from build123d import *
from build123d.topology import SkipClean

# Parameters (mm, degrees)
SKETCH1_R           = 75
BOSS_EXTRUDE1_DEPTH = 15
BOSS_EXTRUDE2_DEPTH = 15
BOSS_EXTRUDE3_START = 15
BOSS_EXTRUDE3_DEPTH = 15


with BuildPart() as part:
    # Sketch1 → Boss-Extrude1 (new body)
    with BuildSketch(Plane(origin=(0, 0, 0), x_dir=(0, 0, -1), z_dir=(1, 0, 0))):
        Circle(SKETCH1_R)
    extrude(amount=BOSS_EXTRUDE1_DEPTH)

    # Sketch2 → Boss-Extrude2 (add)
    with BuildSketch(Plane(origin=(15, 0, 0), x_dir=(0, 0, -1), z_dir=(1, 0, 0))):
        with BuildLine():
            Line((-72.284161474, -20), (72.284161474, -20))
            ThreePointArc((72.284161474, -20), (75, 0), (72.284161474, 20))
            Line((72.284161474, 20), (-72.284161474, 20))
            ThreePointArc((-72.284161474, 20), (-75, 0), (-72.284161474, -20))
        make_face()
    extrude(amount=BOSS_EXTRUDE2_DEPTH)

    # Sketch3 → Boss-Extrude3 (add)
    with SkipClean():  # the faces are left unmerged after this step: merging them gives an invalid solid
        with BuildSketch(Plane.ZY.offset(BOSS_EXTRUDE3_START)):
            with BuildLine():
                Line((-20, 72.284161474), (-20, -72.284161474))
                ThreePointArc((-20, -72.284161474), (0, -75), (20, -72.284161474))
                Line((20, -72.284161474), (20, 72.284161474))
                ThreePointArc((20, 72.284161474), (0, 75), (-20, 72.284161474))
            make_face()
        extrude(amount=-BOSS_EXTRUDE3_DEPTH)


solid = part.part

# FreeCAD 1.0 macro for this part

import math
import FreeCAD as App
import Part
import Sketcher

V = App.Vector
Q = App.Units.Quantity

doc = App.newDocument("Part")
body = doc.addObject("PartDesign::Body", "Body")

sketch1 = doc.addObject("Sketcher::SketchObject", "Sketch")
body.addObject(sketch1)
sketch1.AttachmentSupport = (doc.YZ_Plane, [""])
sketch1.MapMode = "FlatFace"
sketch1.addGeometry(Part.Circle(V(0, 0, 0), V(0, 0, 1), 75), False)
sketch1.addConstraint([
    Sketcher.Constraint("Coincident", 0, 3, -1, 1),
    Sketcher.Constraint("Diameter", 0, Q("150 mm")),
])
pad1 = doc.addObject("PartDesign::Pad", "Pad")
body.addObject(pad1)
pad1.Profile = sketch1
pad1.Length = 15

sketch2 = doc.addObject("Sketcher::SketchObject", "Sketch001")
body.addObject(sketch2)
sketch2.AttachmentSupport = (doc.YZ_Plane, [""])
sketch2.MapMode = "FlatFace"
sketch2.AttachmentOffset = App.Placement(V(0, 0, 15), App.Rotation())
sketch2.addGeometry([
    Part.LineSegment(V(-20, 72, 0), V(-20, -72, 0)),
    Part.ArcOfCircle(Part.Circle(V(0, 0, 0), V(0, 0, 1), 75), math.radians(-105), math.radians(-75)),
    Part.LineSegment(V(20, -72, 0), V(20, 72, 0)),
    Part.ArcOfCircle(Part.Circle(V(0, 0, 0), V(0, 0, 1), 75), math.radians(75), math.radians(105)),
], False)
sketch2.addConstraint([
    Sketcher.Constraint("Coincident", 0, 2, 1, 1),
    Sketcher.Constraint("Coincident", 1, 2, 2, 1),
    Sketcher.Constraint("Coincident", 2, 2, 3, 1),
    Sketcher.Constraint("Coincident", 3, 2, 0, 1),
    Sketcher.Constraint("Vertical", 0),
    Sketcher.Constraint("Vertical", 2),
    Sketcher.Constraint("Coincident", 1, 3, -1, 1),
    Sketcher.Constraint("Coincident", 3, 3, -1, 1),
    Sketcher.Constraint("Equal", 1, 3),
    Sketcher.Constraint("Horizontal", 0, 2, 1, 2),
    Sketcher.Constraint("Radius", 1, Q("75 mm")),
    Sketcher.Constraint("DistanceX", 0, 2, -1, 1, Q("20 mm")),
])
pad2 = doc.addObject("PartDesign::Pad", "Pad001")
body.addObject(pad2)
pad2.Profile = sketch2
pad2.Length = 15

sketch3 = doc.addObject("Sketcher::SketchObject", "Sketch002")
body.addObject(sketch3)
sketch3.AttachmentSupport = (doc.YZ_Plane, [""])
sketch3.MapMode = "FlatFace"
sketch3.AttachmentOffset = App.Placement(V(0, 0, -15), App.Rotation())
sketch3.addGeometry([
    Part.LineSegment(V(72, -20, 0), V(-72, -20, 0)),
    Part.ArcOfCircle(Part.Circle(V(0, 0, 0), V(0, 0, 1), 75), math.radians(165), math.radians(195)),
    Part.LineSegment(V(-72, 20, 0), V(72, 20, 0)),
    Part.ArcOfCircle(Part.Circle(V(0, 0, 0), V(0, 0, 1), 75), math.radians(-15), math.radians(15)),
], False)
sketch3.addConstraint([
    Sketcher.Constraint("Coincident", 0, 2, 1, 2),
    Sketcher.Constraint("Coincident", 1, 1, 2, 1),
    Sketcher.Constraint("Coincident", 2, 2, 3, 2),
    Sketcher.Constraint("Coincident", 3, 1, 0, 1),
    Sketcher.Constraint("Horizontal", 0),
    Sketcher.Constraint("Horizontal", 2),
    Sketcher.Constraint("Coincident", 1, 3, -1, 1),
    Sketcher.Constraint("Coincident", 3, 3, -1, 1),
    Sketcher.Constraint("Equal", 1, 3),
    Sketcher.Constraint("Vertical", 0, 2, 1, 1),
    Sketcher.Constraint("Radius", 1, Q("75 mm")),
    Sketcher.Constraint("DistanceY", 0, 2, -1, 1, Q("20 mm")),
])
pad3 = doc.addObject("PartDesign::Pad", "Pad002")
body.addObject(pad3)
pad3.Profile = sketch3
pad3.Length = 15

doc.recompute()
